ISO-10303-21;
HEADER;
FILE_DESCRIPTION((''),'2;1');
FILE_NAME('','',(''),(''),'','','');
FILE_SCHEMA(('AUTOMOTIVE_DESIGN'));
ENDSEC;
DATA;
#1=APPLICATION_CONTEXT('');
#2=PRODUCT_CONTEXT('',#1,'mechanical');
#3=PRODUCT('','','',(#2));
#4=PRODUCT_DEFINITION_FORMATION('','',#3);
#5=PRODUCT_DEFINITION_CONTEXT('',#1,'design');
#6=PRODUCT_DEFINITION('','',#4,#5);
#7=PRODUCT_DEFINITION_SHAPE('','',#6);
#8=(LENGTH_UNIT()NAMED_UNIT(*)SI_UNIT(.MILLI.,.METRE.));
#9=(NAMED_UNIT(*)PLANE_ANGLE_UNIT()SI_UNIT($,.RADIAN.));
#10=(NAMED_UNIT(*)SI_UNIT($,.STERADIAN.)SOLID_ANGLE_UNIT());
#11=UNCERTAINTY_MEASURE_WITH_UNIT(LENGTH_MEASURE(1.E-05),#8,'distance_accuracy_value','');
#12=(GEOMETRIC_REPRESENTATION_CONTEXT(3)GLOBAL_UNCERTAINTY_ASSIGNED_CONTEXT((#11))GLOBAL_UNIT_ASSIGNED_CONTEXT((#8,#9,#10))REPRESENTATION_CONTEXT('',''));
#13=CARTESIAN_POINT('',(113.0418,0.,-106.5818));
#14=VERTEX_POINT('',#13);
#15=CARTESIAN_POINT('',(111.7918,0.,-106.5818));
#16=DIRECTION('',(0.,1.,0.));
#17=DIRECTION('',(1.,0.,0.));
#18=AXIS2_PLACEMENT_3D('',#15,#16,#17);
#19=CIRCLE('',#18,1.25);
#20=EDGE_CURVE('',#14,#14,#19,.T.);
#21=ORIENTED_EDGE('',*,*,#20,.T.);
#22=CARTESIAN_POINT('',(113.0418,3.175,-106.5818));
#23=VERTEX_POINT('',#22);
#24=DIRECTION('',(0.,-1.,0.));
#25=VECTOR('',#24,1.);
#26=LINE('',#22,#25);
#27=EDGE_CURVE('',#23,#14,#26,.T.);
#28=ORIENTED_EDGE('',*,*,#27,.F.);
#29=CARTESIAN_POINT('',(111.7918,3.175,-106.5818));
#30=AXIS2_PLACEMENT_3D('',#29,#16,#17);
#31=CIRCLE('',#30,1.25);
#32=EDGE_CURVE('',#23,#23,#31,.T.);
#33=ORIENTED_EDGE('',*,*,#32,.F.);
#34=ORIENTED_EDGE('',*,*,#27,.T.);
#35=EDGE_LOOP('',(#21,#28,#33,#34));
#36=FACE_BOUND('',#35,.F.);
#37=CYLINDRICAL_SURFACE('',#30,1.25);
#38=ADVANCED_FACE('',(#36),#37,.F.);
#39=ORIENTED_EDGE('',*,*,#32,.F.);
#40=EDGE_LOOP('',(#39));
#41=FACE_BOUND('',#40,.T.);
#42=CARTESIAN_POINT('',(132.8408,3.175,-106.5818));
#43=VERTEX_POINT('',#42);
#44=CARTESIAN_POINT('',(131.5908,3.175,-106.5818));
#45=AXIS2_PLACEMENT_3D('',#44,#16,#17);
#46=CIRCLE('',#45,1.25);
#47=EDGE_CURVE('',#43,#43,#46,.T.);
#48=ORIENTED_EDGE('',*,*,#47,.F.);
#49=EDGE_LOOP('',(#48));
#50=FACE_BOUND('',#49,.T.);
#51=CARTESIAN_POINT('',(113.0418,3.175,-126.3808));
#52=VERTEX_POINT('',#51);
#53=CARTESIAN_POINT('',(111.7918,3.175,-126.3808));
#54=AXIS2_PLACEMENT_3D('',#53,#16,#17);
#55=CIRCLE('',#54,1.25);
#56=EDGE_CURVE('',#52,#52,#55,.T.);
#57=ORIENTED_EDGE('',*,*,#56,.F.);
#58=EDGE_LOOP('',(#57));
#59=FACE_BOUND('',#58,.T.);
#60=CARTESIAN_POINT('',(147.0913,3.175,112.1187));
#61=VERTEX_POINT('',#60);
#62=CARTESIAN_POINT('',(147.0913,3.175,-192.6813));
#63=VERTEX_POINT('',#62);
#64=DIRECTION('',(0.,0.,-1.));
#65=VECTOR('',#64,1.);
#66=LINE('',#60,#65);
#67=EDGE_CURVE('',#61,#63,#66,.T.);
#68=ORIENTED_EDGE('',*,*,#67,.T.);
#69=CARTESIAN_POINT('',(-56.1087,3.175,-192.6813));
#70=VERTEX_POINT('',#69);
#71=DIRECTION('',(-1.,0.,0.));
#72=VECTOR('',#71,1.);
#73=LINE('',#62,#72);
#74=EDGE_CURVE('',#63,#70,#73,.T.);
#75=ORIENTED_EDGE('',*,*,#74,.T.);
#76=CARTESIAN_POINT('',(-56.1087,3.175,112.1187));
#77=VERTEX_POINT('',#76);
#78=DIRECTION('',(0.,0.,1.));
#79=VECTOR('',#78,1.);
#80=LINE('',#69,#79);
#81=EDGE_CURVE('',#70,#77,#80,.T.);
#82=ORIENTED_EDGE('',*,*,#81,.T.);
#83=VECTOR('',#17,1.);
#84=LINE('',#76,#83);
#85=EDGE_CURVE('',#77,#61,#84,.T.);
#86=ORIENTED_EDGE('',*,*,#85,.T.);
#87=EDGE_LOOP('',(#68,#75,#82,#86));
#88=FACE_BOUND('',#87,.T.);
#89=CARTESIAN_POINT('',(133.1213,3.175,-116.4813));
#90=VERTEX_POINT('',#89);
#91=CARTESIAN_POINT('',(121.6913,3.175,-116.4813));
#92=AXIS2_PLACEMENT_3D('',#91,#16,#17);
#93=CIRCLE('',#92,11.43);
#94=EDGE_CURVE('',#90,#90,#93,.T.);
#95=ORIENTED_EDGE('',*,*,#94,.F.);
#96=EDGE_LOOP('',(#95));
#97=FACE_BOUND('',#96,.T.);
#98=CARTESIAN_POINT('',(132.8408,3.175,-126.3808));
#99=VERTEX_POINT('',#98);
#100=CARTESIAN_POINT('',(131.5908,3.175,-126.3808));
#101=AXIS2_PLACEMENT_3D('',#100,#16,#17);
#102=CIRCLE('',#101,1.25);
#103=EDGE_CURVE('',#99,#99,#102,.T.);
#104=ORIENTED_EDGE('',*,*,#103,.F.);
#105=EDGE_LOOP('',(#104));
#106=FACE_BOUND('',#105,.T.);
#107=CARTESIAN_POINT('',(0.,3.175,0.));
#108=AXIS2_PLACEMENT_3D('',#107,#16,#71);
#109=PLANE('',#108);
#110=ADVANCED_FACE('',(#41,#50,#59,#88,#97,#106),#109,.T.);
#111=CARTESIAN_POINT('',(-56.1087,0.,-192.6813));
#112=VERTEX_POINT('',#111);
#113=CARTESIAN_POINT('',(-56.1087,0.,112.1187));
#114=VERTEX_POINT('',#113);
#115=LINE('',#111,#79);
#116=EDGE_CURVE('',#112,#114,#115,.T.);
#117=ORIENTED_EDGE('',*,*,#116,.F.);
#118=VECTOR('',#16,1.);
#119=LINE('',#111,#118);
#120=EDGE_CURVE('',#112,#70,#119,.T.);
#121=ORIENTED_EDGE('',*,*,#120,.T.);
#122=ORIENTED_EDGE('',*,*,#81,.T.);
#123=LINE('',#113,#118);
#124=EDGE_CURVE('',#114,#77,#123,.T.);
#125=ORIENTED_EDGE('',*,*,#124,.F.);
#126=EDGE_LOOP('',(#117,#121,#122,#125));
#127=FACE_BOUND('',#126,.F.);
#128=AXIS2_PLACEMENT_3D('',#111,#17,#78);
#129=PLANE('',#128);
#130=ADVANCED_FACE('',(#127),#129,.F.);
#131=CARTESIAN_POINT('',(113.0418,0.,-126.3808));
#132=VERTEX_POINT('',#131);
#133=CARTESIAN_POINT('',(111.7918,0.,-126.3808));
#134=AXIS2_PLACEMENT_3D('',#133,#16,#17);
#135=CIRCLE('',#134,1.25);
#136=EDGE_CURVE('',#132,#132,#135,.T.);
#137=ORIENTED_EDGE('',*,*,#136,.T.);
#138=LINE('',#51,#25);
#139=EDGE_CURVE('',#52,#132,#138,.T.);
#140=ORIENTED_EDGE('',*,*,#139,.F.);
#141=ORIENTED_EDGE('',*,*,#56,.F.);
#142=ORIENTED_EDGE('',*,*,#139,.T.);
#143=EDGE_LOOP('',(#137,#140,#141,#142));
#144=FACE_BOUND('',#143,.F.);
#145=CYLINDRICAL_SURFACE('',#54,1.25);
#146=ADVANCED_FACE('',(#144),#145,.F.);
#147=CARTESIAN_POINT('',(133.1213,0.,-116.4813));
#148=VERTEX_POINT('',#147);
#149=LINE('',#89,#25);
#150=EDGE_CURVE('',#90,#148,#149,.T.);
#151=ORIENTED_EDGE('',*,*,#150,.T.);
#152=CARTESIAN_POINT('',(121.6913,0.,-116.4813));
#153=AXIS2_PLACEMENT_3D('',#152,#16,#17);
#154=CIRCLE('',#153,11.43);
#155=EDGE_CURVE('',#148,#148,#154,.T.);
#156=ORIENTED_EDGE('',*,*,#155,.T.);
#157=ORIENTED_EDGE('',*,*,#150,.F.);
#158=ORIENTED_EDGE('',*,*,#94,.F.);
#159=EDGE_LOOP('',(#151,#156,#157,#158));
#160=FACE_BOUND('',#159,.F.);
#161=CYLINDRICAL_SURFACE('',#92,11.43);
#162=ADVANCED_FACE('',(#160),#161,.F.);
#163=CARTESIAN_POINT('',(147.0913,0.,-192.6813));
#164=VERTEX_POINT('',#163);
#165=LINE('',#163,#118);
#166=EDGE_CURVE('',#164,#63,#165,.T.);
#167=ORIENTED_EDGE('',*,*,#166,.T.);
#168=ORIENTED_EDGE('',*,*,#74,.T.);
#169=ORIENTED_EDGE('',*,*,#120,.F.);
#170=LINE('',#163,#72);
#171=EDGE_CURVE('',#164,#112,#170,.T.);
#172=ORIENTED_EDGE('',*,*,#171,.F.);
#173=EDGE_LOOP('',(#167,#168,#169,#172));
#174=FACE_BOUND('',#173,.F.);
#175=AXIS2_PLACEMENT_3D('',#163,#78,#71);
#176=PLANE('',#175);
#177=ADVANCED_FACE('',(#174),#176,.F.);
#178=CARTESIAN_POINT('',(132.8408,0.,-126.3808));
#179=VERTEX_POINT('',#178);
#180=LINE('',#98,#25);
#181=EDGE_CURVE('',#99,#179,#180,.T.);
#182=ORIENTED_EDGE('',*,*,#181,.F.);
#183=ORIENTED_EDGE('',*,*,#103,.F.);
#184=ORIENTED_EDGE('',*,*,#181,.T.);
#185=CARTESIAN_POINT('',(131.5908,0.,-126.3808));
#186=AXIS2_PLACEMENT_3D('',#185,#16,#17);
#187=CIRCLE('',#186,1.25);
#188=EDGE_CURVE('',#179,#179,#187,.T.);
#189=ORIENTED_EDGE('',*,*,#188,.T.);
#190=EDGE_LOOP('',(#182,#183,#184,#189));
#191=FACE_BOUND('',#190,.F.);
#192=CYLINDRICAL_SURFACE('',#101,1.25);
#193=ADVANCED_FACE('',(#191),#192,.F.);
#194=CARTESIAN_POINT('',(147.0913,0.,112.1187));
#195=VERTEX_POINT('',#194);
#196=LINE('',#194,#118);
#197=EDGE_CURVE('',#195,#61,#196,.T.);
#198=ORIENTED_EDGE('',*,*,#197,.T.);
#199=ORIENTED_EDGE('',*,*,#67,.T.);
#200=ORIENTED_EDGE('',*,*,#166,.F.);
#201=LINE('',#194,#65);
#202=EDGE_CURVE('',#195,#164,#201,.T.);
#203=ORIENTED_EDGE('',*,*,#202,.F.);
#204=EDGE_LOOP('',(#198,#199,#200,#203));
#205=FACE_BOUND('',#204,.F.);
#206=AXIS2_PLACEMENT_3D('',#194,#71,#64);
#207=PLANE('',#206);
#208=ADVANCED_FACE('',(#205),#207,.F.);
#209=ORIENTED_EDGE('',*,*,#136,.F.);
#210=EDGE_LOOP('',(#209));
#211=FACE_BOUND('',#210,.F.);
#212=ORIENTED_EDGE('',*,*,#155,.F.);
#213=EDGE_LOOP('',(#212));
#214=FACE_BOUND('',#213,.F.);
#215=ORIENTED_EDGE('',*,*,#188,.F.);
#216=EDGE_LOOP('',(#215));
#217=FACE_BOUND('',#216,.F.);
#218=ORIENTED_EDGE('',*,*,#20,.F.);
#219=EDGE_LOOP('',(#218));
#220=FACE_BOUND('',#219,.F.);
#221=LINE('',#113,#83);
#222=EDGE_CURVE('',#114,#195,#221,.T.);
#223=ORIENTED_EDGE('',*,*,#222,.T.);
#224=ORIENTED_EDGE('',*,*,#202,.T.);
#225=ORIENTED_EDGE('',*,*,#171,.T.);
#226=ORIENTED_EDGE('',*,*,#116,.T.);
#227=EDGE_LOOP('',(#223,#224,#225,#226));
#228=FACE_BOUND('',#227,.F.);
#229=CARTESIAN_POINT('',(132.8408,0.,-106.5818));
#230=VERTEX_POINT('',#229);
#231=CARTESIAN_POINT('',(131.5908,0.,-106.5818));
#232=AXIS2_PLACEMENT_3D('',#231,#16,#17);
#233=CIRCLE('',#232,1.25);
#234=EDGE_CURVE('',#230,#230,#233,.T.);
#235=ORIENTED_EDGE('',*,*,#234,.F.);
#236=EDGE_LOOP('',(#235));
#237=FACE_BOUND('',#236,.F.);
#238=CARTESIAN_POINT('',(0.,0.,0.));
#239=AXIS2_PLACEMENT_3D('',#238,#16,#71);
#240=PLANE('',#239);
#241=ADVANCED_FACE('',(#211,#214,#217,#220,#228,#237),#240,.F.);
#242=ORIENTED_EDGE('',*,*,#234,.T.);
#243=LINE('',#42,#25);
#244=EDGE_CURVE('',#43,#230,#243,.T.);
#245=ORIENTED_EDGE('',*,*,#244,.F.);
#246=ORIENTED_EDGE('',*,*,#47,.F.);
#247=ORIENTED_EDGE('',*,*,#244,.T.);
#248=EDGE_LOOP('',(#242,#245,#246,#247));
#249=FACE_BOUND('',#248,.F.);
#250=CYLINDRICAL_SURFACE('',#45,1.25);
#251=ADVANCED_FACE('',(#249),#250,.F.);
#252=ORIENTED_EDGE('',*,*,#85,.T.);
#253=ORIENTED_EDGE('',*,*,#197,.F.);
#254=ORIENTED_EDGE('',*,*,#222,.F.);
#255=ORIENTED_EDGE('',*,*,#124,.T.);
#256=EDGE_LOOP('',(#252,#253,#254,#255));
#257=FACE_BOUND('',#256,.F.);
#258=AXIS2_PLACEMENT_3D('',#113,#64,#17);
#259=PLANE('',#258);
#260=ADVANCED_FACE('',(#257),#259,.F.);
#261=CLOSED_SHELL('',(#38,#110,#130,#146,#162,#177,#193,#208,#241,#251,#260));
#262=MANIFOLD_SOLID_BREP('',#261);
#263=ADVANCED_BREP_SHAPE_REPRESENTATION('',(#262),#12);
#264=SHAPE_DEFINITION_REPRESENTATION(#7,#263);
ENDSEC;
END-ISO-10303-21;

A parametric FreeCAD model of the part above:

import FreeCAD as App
import Part
import Sketcher
from FreeCAD import Vector
Q = App.Units.Quantity

doc = App.newDocument("Part")
body = doc.addObject("PartDesign::Body", "Body")

sketch1 = body.newObject("Sketcher::SketchObject", "Sketch")
sketch1.AttachmentSupport = (doc.getObject("XZ_Plane"), [""])
sketch1.MapMode = "FlatFace"
sketch1.addGeometry([
    Part.LineSegment(Vector(-56, -193, 0), Vector(-56, 112, 0)),
    Part.LineSegment(Vector(-56, 112, 0), Vector(147, 112, 0)),
    Part.LineSegment(Vector(147, 112, 0), Vector(147, -193, 0)),
    Part.LineSegment(Vector(147, -193, 0), Vector(-56, -193, 0)),
], False)
sketch1.addConstraint([
    Sketcher.Constraint("Coincident", 0, 2, 1, 1),
    Sketcher.Constraint("Coincident", 1, 2, 2, 1),
    Sketcher.Constraint("Coincident", 2, 2, 3, 1),
    Sketcher.Constraint("Coincident", 3, 2, 0, 1),
    Sketcher.Constraint("Vertical", 0),
    Sketcher.Constraint("Horizontal", 1),
    Sketcher.Constraint("Vertical", 2),
    Sketcher.Constraint("Horizontal", 3),
    Sketcher.Constraint("DistanceX", 1, 1, 1, 2, Q("8 in")),
    Sketcher.Constraint("DistanceY", 0, 1, 0, 2, Q("12 in")),
    Sketcher.Constraint("DistanceX", 0, 2, -1, 1, Q("2.209 in")),
    Sketcher.Constraint("DistanceY", -1, 1, 0, 2, 112.1187),
])
pad1 = body.newObject("PartDesign::Pad", "Pad")
pad1.Profile = sketch1
pad1.Length = Q("0.125 in")
pad1.Reversed = True

sketch2 = body.newObject("Sketcher::SketchObject", "Sketch001")
sketch2.AttachmentSupport = (doc.getObject("XZ_Plane"), [""])
sketch2.MapMode = "FlatFace"
sketch2.AttachmentOffset = App.Placement(Vector(0, 0, -0.125 * 25.4), App.Rotation())
sketch2.addGeometry([
    Part.Circle(Vector(121.7, -116.5, 0), Vector(0, 0, 1), 11.4),
    Part.Circle(Vector(131.6, -106.6, 0), Vector(0, 0, 1), 1.2),
    Part.Circle(Vector(131.6, -126.4, 0), Vector(0, 0, 1), 1.2),
    Part.Circle(Vector(111.8, -106.6, 0), Vector(0, 0, 1), 1.2),
    Part.Circle(Vector(111.8, -126.4, 0), Vector(0, 0, 1), 1.2),
], False)
sketch2.addConstraint([
    Sketcher.Constraint("Equal", 1, 2),
    Sketcher.Constraint("Equal", 2, 3),
    Sketcher.Constraint("Equal", 3, 4),
    Sketcher.Constraint("Horizontal", 1, 3, 3, 3),
    Sketcher.Constraint("Horizontal", 2, 3, 4, 3),
    Sketcher.Constraint("Vertical", 1, 3, 2, 3),
    Sketcher.Constraint("Vertical", 3, 3, 4, 3),
    Sketcher.Constraint("Diameter", 0, Q("0.9 in")),
    Sketcher.Constraint("Diameter", 1, 2.5),
    Sketcher.Constraint("DistanceX", -1, 1, 0, 3, Q("4.791 in")),
    Sketcher.Constraint("DistanceY", 2, 3, 1, 3, Q("0.7795 in")),
    Sketcher.Constraint("DistanceX", 3, 3, 1, 3, Q("0.7795 in")),
    Sketcher.Constraint("DistanceY", 0, 3, -1, 1, 116.4813),
    Sketcher.Constraint("DistanceX", -1, 1, 1, 3, 131.5908),
    Sketcher.Constraint("DistanceY", 1, 3, -1, 1, 106.5818),
])
pocket1 = body.newObject("PartDesign::Pocket", "Pocket")
pocket1.Profile = sketch2
pocket1.Length = Q("1 in")
pocket1.Reversed = True

doc.recompute()
